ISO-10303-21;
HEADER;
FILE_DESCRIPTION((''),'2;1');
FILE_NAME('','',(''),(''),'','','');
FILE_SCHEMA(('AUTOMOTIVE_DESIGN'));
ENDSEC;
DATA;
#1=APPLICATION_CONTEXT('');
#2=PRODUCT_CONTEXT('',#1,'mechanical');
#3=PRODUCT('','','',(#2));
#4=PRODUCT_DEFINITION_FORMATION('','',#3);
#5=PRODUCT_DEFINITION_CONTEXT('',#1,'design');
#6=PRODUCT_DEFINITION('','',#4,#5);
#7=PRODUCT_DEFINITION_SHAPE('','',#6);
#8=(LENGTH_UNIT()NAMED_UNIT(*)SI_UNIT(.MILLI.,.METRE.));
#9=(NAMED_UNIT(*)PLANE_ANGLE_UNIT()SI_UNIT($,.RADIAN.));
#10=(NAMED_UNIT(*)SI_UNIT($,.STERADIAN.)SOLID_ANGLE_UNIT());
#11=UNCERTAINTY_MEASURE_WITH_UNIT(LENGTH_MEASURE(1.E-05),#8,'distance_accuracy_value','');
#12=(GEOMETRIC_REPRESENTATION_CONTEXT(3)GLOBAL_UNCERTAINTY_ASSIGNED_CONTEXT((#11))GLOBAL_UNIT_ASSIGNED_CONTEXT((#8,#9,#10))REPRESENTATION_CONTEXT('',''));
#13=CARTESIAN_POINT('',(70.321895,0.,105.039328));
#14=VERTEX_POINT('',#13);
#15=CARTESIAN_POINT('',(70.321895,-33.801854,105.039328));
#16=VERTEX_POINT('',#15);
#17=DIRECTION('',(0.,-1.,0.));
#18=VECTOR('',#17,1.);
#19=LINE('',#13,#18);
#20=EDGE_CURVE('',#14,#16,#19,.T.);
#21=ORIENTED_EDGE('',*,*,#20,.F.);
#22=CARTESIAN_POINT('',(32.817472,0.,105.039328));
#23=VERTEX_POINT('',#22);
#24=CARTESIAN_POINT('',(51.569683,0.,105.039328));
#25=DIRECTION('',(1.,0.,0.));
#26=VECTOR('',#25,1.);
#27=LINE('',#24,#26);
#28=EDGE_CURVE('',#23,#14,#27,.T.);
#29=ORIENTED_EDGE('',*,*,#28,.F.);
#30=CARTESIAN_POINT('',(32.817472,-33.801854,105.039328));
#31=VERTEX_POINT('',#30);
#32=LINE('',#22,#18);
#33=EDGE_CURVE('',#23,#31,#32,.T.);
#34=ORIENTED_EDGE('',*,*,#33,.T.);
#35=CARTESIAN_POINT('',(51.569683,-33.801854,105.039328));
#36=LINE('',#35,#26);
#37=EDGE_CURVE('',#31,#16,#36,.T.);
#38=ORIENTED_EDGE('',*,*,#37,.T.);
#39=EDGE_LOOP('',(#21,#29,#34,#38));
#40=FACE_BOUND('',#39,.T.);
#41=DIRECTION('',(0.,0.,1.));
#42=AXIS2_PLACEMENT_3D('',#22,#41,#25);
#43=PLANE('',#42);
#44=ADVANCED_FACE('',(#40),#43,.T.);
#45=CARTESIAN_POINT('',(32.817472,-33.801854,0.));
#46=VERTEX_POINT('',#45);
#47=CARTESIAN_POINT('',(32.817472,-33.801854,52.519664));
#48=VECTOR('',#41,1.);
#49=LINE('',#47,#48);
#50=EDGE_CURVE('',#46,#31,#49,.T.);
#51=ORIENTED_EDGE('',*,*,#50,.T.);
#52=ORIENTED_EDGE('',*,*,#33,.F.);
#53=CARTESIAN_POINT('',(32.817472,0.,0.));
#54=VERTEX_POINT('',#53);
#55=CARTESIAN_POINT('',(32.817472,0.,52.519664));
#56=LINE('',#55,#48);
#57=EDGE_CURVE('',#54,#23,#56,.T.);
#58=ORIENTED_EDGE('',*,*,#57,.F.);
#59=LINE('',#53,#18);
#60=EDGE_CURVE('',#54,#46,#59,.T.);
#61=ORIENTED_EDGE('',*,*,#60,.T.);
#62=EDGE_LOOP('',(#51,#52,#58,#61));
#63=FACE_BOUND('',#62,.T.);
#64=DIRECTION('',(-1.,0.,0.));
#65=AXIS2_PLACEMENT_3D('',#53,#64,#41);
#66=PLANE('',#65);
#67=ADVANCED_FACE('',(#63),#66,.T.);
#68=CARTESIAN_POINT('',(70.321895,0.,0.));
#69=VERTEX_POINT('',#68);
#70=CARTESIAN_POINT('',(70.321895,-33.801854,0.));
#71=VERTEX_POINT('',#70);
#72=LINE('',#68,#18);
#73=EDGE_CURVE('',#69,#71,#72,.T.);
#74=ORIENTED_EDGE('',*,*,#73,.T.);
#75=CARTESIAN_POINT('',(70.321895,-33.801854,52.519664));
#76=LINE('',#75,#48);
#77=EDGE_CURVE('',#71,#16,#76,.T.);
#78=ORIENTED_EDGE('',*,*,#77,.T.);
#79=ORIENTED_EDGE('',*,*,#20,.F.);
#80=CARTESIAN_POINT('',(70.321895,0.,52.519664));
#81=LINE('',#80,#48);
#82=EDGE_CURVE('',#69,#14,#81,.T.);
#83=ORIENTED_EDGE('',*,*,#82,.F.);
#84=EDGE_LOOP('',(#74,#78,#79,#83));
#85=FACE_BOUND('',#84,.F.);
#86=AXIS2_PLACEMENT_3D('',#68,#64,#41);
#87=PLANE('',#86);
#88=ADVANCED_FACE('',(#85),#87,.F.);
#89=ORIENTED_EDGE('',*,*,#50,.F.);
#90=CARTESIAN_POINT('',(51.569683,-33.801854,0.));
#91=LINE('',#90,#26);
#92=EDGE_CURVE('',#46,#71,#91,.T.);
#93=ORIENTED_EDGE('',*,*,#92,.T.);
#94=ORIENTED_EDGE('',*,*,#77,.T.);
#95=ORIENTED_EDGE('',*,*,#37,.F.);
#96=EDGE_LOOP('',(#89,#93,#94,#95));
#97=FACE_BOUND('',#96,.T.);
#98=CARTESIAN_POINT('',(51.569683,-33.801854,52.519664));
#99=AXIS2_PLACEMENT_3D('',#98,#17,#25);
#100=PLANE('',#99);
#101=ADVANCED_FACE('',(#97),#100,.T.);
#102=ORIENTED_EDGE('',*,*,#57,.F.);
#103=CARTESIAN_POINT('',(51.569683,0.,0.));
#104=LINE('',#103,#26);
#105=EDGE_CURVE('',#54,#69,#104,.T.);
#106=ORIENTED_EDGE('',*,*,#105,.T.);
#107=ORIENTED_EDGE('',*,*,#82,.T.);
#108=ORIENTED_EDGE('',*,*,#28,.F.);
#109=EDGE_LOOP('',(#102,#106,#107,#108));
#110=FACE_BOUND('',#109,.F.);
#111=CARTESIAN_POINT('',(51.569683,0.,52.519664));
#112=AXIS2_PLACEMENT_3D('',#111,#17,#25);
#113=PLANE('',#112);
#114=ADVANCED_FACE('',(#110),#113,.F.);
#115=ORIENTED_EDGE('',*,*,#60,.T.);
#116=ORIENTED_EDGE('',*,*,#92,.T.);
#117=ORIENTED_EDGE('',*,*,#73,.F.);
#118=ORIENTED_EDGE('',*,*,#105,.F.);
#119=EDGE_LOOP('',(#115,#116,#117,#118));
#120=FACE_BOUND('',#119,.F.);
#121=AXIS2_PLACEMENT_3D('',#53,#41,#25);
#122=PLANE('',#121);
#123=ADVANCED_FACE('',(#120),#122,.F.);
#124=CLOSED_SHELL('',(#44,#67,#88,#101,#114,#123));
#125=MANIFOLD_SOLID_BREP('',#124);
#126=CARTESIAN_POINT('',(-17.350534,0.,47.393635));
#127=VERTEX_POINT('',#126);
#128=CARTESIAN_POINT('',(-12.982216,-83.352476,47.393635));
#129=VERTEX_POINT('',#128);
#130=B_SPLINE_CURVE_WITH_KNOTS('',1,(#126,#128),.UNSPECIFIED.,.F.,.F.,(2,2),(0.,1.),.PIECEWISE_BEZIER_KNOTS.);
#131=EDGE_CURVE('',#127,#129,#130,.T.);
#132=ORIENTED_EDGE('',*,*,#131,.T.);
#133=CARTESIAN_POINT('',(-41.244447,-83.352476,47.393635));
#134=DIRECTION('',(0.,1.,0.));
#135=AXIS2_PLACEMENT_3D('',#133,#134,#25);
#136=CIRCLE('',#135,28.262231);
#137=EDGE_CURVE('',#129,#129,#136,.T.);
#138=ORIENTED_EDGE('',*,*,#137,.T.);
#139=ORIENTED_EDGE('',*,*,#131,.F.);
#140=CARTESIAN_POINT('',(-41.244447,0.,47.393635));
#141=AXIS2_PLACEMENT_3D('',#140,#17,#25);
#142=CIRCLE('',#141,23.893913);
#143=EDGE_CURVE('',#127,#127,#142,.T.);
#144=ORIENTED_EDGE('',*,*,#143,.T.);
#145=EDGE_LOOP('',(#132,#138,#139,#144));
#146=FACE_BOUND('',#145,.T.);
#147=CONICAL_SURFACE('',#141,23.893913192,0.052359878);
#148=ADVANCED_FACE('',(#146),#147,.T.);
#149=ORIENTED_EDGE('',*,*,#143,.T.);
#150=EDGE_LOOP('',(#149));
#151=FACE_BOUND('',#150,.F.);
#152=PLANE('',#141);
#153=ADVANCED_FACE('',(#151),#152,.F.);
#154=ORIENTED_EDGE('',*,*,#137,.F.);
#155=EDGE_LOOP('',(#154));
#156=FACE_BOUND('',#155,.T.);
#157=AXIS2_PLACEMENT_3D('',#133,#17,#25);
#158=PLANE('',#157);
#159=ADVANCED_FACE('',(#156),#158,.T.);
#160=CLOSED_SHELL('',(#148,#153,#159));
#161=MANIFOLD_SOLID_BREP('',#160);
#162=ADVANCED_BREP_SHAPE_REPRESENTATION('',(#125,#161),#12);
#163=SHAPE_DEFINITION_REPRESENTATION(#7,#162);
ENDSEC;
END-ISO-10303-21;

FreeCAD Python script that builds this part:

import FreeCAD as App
import Part
import Sketcher

V = App.Vector
Q = App.Units.Quantity


def add_polygon(sketch, points):
    """Adds a closed chain of lines whose ends are joined by coincident constraints."""
    first, n = sketch.GeometryCount, len(points)
    for a, b in zip(points, points[1:] + points[:1]):
        sketch.addGeometry(Part.LineSegment(App.Vector(*a, 0), App.Vector(*b, 0)), False)
    for i in range(n):
        sketch.addConstraint(Sketcher.Constraint("Coincident", first + i, 2, first + (i + 1) % n, 1))

doc = App.newDocument("Part")
body = doc.addObject("PartDesign::Body", "Body")

# Sketch on XZ plane
sketch1 = body.newObject("Sketcher::SketchObject", "Sketch")
sketch1.AttachmentSupport = (doc.getObject("XZ_Plane"), [""])
sketch1.MapMode = "FlatFace"
sketch1.addGeometry(Part.Circle(V(-41, 47, 0), V(0, 0, 1), 24), False)
sketch1.addConstraint([
    Sketcher.Constraint("Diameter", 0, Q("47.787826 mm")),
    Sketcher.Constraint("DistanceX", 0, 3, -1, 1, Q("41.244447 mm")),
    Sketcher.Constraint("DistanceY", -1, 1, 0, 3, Q("47.393635 mm")),
])
pad1 = body.newObject("PartDesign::Pad", "Pad")
pad1.Profile = sketch1
pad1.Length = 83.352476
pad1.TaperAngle = 3
body2 = doc.addObject("PartDesign::Body", "Body001")

# Sketch on XZ plane
sketch2 = body2.newObject("Sketcher::SketchObject", "Sketch001")
sketch2.AttachmentSupport = (doc.getObject("XZ_Plane001"), [""])
sketch2.MapMode = "FlatFace"
add_polygon(sketch2, [(33, 105), (33, 0), (70, 0), (70, 105)])  # lines 0-3
sketch2.addConstraint([
    Sketcher.Constraint("Vertical", 0),
    Sketcher.Constraint("Horizontal", 1),
    Sketcher.Constraint("Vertical", 2),
    Sketcher.Constraint("Horizontal", 3),
    Sketcher.Constraint("PointOnObject", 0, 2, -1),
    Sketcher.Constraint("DistanceY", 0, 2, 0, 1, Q("105.039328 mm")),
    Sketcher.Constraint("DistanceX", 1, 1, 1, 2, Q("37.504423 mm")),
    Sketcher.Constraint("DistanceX", -1, 1, 0, 2, Q("32.817472 mm")),
])
pad2 = body2.newObject("PartDesign::Pad", "Pad001")
pad2.Profile = sketch2
pad2.Length = 33.801854

doc.recompute()
